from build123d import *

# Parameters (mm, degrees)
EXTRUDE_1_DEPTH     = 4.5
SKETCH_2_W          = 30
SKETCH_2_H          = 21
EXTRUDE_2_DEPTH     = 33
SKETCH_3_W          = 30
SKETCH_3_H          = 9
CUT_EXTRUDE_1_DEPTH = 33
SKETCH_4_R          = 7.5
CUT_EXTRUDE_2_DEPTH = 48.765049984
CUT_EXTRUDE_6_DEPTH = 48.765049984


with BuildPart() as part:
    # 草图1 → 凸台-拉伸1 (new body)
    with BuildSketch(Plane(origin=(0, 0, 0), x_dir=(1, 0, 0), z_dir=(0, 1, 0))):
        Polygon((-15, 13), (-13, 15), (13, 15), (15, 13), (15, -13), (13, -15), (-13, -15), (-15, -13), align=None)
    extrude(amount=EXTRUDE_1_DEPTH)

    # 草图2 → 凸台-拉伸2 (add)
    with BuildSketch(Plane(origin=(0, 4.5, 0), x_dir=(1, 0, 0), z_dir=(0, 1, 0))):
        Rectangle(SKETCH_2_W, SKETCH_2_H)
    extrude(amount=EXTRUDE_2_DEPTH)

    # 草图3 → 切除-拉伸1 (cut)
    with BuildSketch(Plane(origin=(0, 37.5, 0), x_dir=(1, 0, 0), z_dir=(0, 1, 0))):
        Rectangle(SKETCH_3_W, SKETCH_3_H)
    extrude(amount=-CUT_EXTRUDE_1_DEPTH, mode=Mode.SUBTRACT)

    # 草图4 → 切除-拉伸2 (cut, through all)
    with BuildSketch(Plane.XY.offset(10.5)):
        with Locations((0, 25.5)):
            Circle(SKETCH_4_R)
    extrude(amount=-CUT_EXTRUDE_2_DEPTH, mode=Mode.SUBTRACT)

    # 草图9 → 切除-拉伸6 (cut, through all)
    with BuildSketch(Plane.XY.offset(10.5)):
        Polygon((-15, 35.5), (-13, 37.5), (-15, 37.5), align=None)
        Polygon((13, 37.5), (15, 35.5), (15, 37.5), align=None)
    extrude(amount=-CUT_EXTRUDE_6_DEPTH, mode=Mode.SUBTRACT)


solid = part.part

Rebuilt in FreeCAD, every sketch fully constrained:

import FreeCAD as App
import Part
import Sketcher

V = App.Vector
Q = App.Units.Quantity


def add_polygon(sketch, points):
    """Adds a closed chain of lines whose ends are joined by coincident constraints."""
    first, n = sketch.GeometryCount, len(points)
    for a, b in zip(points, points[1:] + points[:1]):
        sketch.addGeometry(Part.LineSegment(App.Vector(*a, 0), App.Vector(*b, 0)), False)
    for i in range(n):
        sketch.addConstraint(Sketcher.Constraint("Coincident", first + i, 2, first + (i + 1) % n, 1))

doc = App.newDocument("Part")
body = doc.addObject("PartDesign::Body", "Body")

# Sketch on XZ plane
sketch1 = body.newObject("Sketcher::SketchObject", "Sketch")
sketch1.AttachmentSupport = (doc.getObject("XZ_Plane"), [""])
sketch1.MapMode = "FlatFace"
add_polygon(sketch1, [(-13, -15), (-15, -13), (-15, 13), (-13, 15), (13, 15), (15, 13), (15, -13), (13, -15)])  # lines 0-7
sketch1.addConstraint([
    Sketcher.Constraint("Vertical", 1),
    Sketcher.Constraint("Horizontal", 3),
    Sketcher.Constraint("Vertical", 5),
    Sketcher.Constraint("Horizontal", 7),
    Sketcher.Constraint("Symmetric", 0, 2, 4, 2, -1, 1),
    Sketcher.Constraint("Symmetric", 2, 2, 6, 2, -1, 1),
    Sketcher.Constraint("Perpendicular", 0, 2),
    Sketcher.Constraint("Perpendicular", 2, 4),
    Sketcher.Constraint("Perpendicular", 4, 6),
    Sketcher.Constraint("Horizontal", 1, 2, 4, 2),
    Sketcher.Constraint("Vertical", 3, 2, 6, 2),
    Sketcher.Constraint("Equal", 7, 1),
    Sketcher.Constraint("DistanceX", 3, 1, 3, 2, Q("26 mm")),
    Sketcher.Constraint("DistanceX", 0, 2, -1, 1, Q("15 mm")),
])
pad1 = body.newObject("PartDesign::Pad", "Pad")
pad1.Profile = sketch1
pad1.Length = 4.5
pad1.Reversed = True

# Sketch on XZ plane
sketch2 = body.newObject("Sketcher::SketchObject", "Sketch001")
sketch2.AttachmentSupport = (doc.getObject("XZ_Plane"), [""])
sketch2.MapMode = "FlatFace"
sketch2.AttachmentOffset = App.Placement(V(0, 0, -4.5), App.Rotation())
add_polygon(sketch2, [(-15, -10), (-15, 10), (15, 10), (15, -10)])  # lines 0-3
sketch2.addConstraint([
    Sketcher.Constraint("Vertical", 0),
    Sketcher.Constraint("Horizontal", 1),
    Sketcher.Constraint("Vertical", 2),
    Sketcher.Constraint("Horizontal", 3),
    Sketcher.Constraint("Symmetric", 0, 2, 2, 2, -1, 1),
    Sketcher.Constraint("DistanceX", 1, 1, 1, 2, Q("30 mm")),
    Sketcher.Constraint("DistanceY", 0, 1, 0, 2, Q("21 mm")),
])
pad2 = body.newObject("PartDesign::Pad", "Pad001")
pad2.Profile = sketch2
pad2.Length = 33
pad2.Reversed = True

# Sketch on XZ plane
sketch3 = body.newObject("Sketcher::SketchObject", "Sketch002")
sketch3.AttachmentSupport = (doc.getObject("XZ_Plane"), [""])
sketch3.MapMode = "FlatFace"
sketch3.AttachmentOffset = App.Placement(V(0, 0, -37.5), App.Rotation())
add_polygon(sketch3, [(-15, -4), (-15, 4), (15, 4), (15, -4)])  # lines 0-3
sketch3.addConstraint([
    Sketcher.Constraint("Vertical", 0),
    Sketcher.Constraint("Horizontal", 1),
    Sketcher.Constraint("Vertical", 2),
    Sketcher.Constraint("Horizontal", 3),
    Sketcher.Constraint("Symmetric", 0, 2, 2, 2, -1, 1),
    Sketcher.Constraint("DistanceX", 1, 1, 1, 2, Q("30 mm")),
    Sketcher.Constraint("DistanceY", 0, 1, 0, 2, Q("9 mm")),
])
pocket1 = body.newObject("PartDesign::Pocket", "Pocket")
pocket1.Profile = sketch3
pocket1.Length = 33
pocket1.Reversed = True

# Sketch on XY plane
sketch4 = body.newObject("Sketcher::SketchObject", "Sketch003")
sketch4.AttachmentSupport = (doc.getObject("XY_Plane"), [""])
sketch4.MapMode = "FlatFace"
sketch4.AttachmentOffset = App.Placement(V(0, 0, 10.5), App.Rotation())
sketch4.addGeometry(Part.Circle(V(0, 26, 0), V(0, 0, 1), 8), False)
sketch4.addConstraint([
    Sketcher.Constraint("PointOnObject", 0, 3, -2),
    Sketcher.Constraint("Diameter", 0, Q("15 mm")),
    Sketcher.Constraint("DistanceY", -1, 1, 0, 3, Q("25.5 mm")),
])
pocket2 = body.newObject("PartDesign::Pocket", "Pocket001")
pocket2.Profile = sketch4
pocket2.Type = "ThroughAll"

# Sketch on XY plane
sketch5 = body.newObject("Sketcher::SketchObject", "Sketch004")
sketch5.AttachmentSupport = (doc.getObject("XY_Plane"), [""])
sketch5.MapMode = "FlatFace"
sketch5.AttachmentOffset = App.Placement(V(0, 0, 10.5), App.Rotation())
add_polygon(sketch5, [(-15, 35.5), (-13, 37.5), (-15, 37.5)])  # lines 0-2
add_polygon(sketch5, [(13, 37.5), (15, 35.5), (15, 37.5)])  # lines 3-5
sketch5.addConstraint([
    Sketcher.Constraint("Horizontal", 1),
    Sketcher.Constraint("Vertical", 2),
    Sketcher.Constraint("Vertical", 4),
    Sketcher.Constraint("Horizontal", 5),
    Sketcher.Constraint("Symmetric", 2, 2, 3, 2, -2),
    Sketcher.Constraint("Symmetric", 0, 2, 5, 2, -2),
    Sketcher.Constraint("Perpendicular", 0, 3),
    Sketcher.Constraint("DistanceX", 1, 2, 1, 1, Q("2 mm")),
    Sketcher.Constraint("DistanceX", 0, 2, -1, 1, Q("13 mm")),
    Sketcher.Constraint("DistanceY", -1, 1, 0, 2, Q("37.5 mm")),
])
pocket3 = body.newObject("PartDesign::Pocket", "Pocket002")
pocket3.Profile = sketch5
pocket3.Type = "ThroughAll"

doc.recompute()
